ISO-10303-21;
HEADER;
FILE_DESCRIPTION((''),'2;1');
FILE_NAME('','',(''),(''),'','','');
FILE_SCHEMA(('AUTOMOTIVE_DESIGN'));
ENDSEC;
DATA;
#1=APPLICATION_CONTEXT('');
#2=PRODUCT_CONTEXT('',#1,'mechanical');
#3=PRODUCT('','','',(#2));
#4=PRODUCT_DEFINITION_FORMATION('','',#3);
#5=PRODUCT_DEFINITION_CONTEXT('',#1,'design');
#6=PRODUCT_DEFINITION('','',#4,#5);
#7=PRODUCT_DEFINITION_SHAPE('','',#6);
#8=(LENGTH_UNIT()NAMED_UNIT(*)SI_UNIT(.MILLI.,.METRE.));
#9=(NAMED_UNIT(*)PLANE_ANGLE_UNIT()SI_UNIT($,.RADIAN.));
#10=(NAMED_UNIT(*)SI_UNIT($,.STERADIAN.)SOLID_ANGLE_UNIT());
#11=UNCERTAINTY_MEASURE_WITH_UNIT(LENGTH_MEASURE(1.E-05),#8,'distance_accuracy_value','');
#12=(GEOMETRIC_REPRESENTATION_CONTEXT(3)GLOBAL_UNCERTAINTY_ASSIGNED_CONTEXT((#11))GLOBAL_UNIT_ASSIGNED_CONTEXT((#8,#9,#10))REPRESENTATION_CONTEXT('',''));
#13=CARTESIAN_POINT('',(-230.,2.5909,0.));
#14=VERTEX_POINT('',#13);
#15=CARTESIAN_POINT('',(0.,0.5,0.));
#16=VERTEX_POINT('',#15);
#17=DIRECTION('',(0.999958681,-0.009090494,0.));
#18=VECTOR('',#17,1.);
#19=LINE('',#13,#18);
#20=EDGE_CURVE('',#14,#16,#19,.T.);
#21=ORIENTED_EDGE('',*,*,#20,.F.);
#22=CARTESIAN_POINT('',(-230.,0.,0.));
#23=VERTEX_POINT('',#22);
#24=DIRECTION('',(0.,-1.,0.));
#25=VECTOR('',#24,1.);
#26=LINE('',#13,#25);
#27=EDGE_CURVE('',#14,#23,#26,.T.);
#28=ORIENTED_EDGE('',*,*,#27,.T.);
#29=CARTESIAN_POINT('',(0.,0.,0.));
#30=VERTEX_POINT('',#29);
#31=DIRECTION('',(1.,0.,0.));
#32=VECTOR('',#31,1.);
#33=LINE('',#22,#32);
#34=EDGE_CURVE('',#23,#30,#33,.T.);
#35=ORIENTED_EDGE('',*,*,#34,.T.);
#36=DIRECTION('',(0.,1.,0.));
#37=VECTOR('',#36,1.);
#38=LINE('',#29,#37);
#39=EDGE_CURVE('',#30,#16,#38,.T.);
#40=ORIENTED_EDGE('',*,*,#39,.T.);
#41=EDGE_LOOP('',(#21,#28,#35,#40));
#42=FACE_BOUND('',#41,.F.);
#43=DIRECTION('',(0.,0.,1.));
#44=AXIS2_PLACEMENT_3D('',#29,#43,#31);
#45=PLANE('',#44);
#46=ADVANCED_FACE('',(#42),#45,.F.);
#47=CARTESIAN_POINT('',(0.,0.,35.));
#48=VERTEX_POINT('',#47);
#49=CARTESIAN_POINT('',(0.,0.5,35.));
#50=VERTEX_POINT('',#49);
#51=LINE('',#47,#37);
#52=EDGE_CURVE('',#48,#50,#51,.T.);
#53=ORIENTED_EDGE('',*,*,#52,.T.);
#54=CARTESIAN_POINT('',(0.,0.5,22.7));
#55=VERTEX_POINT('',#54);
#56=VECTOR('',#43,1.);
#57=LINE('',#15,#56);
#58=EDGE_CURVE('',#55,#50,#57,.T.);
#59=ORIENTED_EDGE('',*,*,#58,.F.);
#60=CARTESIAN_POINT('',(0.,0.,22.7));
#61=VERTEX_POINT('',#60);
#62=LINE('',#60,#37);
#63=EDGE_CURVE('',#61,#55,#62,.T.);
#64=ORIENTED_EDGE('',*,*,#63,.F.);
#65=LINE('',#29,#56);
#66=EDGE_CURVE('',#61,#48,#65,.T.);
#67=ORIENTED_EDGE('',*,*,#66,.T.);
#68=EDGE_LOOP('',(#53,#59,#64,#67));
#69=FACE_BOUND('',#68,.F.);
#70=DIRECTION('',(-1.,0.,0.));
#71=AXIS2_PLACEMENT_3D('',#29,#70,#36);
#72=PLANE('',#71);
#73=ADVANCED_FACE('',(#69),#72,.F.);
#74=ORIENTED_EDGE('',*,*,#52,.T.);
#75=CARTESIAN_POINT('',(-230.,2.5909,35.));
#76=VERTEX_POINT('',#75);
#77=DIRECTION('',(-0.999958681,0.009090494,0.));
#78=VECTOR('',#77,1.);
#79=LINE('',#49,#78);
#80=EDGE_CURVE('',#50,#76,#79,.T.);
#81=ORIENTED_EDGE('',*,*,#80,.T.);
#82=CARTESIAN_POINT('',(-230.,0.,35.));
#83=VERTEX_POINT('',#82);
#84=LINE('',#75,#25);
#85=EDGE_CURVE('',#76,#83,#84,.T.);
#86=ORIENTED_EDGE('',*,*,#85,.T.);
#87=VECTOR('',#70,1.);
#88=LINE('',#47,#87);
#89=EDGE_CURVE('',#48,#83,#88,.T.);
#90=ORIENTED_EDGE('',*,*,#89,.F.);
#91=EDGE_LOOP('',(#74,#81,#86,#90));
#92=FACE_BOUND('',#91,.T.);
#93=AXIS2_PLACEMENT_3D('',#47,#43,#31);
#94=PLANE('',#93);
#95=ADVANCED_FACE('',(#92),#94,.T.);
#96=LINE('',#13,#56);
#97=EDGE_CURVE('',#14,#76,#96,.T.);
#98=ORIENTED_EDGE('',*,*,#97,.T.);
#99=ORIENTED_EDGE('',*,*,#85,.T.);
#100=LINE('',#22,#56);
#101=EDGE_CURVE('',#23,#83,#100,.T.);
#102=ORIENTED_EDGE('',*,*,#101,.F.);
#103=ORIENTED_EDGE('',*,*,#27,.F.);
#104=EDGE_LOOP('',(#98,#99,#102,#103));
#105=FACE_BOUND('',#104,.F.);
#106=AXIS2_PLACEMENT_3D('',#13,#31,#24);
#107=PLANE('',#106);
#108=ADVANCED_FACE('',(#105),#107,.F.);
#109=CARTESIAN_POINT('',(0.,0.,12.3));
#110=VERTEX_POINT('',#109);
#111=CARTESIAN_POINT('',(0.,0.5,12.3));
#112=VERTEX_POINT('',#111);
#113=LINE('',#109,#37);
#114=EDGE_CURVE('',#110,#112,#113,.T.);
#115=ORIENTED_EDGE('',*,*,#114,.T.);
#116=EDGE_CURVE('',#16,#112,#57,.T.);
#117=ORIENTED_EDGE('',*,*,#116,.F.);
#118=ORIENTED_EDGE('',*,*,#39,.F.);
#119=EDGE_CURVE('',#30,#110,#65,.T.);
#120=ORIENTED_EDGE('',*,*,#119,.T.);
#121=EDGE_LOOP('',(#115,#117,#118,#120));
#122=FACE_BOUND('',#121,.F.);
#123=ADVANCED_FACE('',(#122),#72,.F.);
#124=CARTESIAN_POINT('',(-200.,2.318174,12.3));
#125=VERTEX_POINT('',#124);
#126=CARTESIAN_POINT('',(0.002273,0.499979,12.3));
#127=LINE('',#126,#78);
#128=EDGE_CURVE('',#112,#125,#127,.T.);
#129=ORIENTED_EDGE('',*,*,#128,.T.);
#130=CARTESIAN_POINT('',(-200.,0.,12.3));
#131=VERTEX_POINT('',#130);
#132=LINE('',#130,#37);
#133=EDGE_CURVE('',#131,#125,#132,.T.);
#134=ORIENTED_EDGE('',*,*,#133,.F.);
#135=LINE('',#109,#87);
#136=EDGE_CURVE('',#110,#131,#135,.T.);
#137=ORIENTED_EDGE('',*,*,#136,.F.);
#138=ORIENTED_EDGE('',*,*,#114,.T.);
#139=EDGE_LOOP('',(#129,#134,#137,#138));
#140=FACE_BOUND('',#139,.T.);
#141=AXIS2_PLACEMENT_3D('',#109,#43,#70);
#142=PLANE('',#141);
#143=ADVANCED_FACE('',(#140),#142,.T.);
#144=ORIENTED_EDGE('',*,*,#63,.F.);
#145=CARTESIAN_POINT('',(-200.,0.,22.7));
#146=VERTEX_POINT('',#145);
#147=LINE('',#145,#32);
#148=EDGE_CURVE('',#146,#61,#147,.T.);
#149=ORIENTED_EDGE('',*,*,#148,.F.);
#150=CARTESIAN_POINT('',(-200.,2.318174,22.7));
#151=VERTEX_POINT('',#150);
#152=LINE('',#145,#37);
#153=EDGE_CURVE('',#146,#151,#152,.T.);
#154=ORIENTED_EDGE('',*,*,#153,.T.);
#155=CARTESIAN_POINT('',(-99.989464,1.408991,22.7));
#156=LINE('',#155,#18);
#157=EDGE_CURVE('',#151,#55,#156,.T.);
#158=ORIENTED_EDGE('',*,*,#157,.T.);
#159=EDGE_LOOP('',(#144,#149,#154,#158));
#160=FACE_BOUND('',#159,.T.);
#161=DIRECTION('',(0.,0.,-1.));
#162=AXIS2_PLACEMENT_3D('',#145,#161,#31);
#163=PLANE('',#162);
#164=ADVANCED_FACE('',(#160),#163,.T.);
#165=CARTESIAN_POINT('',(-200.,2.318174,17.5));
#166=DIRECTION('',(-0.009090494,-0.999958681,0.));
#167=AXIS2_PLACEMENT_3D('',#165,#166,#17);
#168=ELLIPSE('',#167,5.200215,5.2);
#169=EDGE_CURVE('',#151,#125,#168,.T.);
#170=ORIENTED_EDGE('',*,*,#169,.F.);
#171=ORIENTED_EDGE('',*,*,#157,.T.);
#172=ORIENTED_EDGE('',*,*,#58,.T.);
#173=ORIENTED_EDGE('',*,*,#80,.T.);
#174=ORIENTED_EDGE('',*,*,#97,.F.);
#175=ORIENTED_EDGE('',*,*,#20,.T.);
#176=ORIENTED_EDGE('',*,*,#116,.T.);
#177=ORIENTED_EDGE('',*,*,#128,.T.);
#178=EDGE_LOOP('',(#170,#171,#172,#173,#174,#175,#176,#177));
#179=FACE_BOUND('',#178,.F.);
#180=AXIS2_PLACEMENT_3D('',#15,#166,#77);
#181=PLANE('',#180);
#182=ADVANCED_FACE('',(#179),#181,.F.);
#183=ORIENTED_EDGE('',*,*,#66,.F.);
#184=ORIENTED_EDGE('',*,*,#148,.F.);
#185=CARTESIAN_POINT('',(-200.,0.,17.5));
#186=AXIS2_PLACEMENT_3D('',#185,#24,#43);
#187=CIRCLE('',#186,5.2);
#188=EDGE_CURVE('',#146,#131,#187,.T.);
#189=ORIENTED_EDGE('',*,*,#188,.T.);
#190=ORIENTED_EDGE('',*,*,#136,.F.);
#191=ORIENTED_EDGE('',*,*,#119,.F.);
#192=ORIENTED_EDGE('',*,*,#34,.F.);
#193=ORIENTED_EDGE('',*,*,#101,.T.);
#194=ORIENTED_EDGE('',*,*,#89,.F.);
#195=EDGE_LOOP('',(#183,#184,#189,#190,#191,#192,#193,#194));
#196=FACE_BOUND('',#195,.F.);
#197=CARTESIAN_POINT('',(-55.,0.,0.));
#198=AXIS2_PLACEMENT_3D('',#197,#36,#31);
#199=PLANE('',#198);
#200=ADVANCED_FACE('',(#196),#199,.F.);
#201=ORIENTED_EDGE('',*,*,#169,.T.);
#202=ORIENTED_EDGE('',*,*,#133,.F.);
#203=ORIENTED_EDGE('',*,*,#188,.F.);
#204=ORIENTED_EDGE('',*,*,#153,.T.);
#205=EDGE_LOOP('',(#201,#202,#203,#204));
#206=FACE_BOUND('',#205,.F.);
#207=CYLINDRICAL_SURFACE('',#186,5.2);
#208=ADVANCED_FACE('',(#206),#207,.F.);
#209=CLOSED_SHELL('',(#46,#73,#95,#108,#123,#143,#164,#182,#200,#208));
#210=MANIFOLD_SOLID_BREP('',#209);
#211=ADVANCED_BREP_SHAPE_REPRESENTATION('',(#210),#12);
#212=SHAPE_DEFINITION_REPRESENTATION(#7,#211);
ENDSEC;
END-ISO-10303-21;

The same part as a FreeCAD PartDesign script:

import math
import FreeCAD as App
import Part
import Sketcher

V = App.Vector
Q = App.Units.Quantity

doc = App.newDocument("Part")
params = doc.addObject("Spreadsheet::Sheet", "Params")
for row, (alias, value) in enumerate([
    ("sketch1_width", "230 mm"),
    ("sketch1_height", "0.5 mm"),
    ("pad1_length", "35 mm"),
    ("sketch2_radius", "5.2 mm"),
    ("sketch2_width", "200 mm"),
], start=1):
    params.set(f"A{row}", alias)
    params.set(f"B{row}", "=" + value)
    params.setAlias(f"B{row}", alias)

body = doc.addObject("PartDesign::Body", "Body")

# Sketch on XY plane
sketch1 = body.newObject("Sketcher::SketchObject", "Sketch")
sketch1.AttachmentSupport = (doc.getObject("XY_Plane"), [""])
sketch1.MapMode = "FlatFace"
sketch1.addGeometry([
    Part.LineSegment(V(0, 0, 0), V(0, 0.5, 0)),
    Part.LineSegment(V(0, 0.5, 0), V(-230, 2.6, 0)),
    Part.LineSegment(V(-230, 2.6, 0), V(-230, 0, 0)),
    Part.LineSegment(V(-230, 0, 0), V(0, 0, 0)),
], False)
sketch1.addConstraint([
    Sketcher.Constraint("Coincident", 0, 2, 1, 1),
    Sketcher.Constraint("Coincident", 1, 2, 2, 1),
    Sketcher.Constraint("Coincident", 2, 2, 3, 1),
    Sketcher.Constraint("Coincident", 3, 2, 0, 1),
    Sketcher.Constraint("Vertical", 0),
    Sketcher.Constraint("Vertical", 2),
    Sketcher.Constraint("Horizontal", 3),
    Sketcher.Constraint("Coincident", 3, 2, -1, 1),
    Sketcher.Constraint("DistanceX", 3, 1, 3, 2, 230.0),
    Sketcher.Constraint("DistanceY", 0, 1, 0, 2, 0.5),
    Sketcher.Constraint("Angle", 1, Q("179.4791 deg")),
])
sketch1.setExpression("Constraints[8]", "Params.sketch1_width")
sketch1.setExpression("Constraints[9]", "Params.sketch1_height")
pad1 = body.newObject("PartDesign::Pad", "Pad")
pad1.Profile = sketch1
pad1.setExpression("Length", "Params.pad1_length")

# Sketch on XZ plane
sketch2 = body.newObject("Sketcher::SketchObject", "Sketch001")
sketch2.AttachmentSupport = (doc.getObject("XZ_Plane"), [""])
sketch2.MapMode = "FlatFace"
sketch2.addGeometry([
    Part.LineSegment(V(-200, 12, 0), V(0, 12, 0)),
    Part.LineSegment(V(0, 12, 0), V(0, 23, 0)),
    Part.LineSegment(V(0, 23, 0), V(-200, 23, 0)),
    Part.ArcOfCircle(Part.Circle(V(-200, 18, 0), V(0, 0, 1), 5), math.radians(90), math.radians(270)),
], False)
sketch2.addConstraint([
    Sketcher.Constraint("Coincident", 0, 2, 1, 1),
    Sketcher.Constraint("Coincident", 1, 2, 2, 1),
    Sketcher.Constraint("Tangent", 2, 2, 3, 1),
    Sketcher.Constraint("Tangent", 3, 2, 0, 1),
    Sketcher.Constraint("Horizontal", 0),
    Sketcher.Constraint("Vertical", 1),
    Sketcher.Constraint("Horizontal", 2),
    Sketcher.Constraint("PointOnObject", 0, 2, -2),
    Sketcher.Constraint("Radius", 3, 5.2),
    Sketcher.Constraint("DistanceX", 0, 1, 0, 2, 200.0),
    Sketcher.Constraint("DistanceY", -1, 1, 3, 3, 17.5),
])
sketch2.setExpression("Constraints[8]", "Params.sketch2_radius")
sketch2.setExpression("Constraints[9]", "Params.sketch2_width")
pocket1 = body.newObject("PartDesign::Pocket", "Pocket")
pocket1.Profile = sketch2
pocket1.Type = "ThroughAll"

doc.recompute()
